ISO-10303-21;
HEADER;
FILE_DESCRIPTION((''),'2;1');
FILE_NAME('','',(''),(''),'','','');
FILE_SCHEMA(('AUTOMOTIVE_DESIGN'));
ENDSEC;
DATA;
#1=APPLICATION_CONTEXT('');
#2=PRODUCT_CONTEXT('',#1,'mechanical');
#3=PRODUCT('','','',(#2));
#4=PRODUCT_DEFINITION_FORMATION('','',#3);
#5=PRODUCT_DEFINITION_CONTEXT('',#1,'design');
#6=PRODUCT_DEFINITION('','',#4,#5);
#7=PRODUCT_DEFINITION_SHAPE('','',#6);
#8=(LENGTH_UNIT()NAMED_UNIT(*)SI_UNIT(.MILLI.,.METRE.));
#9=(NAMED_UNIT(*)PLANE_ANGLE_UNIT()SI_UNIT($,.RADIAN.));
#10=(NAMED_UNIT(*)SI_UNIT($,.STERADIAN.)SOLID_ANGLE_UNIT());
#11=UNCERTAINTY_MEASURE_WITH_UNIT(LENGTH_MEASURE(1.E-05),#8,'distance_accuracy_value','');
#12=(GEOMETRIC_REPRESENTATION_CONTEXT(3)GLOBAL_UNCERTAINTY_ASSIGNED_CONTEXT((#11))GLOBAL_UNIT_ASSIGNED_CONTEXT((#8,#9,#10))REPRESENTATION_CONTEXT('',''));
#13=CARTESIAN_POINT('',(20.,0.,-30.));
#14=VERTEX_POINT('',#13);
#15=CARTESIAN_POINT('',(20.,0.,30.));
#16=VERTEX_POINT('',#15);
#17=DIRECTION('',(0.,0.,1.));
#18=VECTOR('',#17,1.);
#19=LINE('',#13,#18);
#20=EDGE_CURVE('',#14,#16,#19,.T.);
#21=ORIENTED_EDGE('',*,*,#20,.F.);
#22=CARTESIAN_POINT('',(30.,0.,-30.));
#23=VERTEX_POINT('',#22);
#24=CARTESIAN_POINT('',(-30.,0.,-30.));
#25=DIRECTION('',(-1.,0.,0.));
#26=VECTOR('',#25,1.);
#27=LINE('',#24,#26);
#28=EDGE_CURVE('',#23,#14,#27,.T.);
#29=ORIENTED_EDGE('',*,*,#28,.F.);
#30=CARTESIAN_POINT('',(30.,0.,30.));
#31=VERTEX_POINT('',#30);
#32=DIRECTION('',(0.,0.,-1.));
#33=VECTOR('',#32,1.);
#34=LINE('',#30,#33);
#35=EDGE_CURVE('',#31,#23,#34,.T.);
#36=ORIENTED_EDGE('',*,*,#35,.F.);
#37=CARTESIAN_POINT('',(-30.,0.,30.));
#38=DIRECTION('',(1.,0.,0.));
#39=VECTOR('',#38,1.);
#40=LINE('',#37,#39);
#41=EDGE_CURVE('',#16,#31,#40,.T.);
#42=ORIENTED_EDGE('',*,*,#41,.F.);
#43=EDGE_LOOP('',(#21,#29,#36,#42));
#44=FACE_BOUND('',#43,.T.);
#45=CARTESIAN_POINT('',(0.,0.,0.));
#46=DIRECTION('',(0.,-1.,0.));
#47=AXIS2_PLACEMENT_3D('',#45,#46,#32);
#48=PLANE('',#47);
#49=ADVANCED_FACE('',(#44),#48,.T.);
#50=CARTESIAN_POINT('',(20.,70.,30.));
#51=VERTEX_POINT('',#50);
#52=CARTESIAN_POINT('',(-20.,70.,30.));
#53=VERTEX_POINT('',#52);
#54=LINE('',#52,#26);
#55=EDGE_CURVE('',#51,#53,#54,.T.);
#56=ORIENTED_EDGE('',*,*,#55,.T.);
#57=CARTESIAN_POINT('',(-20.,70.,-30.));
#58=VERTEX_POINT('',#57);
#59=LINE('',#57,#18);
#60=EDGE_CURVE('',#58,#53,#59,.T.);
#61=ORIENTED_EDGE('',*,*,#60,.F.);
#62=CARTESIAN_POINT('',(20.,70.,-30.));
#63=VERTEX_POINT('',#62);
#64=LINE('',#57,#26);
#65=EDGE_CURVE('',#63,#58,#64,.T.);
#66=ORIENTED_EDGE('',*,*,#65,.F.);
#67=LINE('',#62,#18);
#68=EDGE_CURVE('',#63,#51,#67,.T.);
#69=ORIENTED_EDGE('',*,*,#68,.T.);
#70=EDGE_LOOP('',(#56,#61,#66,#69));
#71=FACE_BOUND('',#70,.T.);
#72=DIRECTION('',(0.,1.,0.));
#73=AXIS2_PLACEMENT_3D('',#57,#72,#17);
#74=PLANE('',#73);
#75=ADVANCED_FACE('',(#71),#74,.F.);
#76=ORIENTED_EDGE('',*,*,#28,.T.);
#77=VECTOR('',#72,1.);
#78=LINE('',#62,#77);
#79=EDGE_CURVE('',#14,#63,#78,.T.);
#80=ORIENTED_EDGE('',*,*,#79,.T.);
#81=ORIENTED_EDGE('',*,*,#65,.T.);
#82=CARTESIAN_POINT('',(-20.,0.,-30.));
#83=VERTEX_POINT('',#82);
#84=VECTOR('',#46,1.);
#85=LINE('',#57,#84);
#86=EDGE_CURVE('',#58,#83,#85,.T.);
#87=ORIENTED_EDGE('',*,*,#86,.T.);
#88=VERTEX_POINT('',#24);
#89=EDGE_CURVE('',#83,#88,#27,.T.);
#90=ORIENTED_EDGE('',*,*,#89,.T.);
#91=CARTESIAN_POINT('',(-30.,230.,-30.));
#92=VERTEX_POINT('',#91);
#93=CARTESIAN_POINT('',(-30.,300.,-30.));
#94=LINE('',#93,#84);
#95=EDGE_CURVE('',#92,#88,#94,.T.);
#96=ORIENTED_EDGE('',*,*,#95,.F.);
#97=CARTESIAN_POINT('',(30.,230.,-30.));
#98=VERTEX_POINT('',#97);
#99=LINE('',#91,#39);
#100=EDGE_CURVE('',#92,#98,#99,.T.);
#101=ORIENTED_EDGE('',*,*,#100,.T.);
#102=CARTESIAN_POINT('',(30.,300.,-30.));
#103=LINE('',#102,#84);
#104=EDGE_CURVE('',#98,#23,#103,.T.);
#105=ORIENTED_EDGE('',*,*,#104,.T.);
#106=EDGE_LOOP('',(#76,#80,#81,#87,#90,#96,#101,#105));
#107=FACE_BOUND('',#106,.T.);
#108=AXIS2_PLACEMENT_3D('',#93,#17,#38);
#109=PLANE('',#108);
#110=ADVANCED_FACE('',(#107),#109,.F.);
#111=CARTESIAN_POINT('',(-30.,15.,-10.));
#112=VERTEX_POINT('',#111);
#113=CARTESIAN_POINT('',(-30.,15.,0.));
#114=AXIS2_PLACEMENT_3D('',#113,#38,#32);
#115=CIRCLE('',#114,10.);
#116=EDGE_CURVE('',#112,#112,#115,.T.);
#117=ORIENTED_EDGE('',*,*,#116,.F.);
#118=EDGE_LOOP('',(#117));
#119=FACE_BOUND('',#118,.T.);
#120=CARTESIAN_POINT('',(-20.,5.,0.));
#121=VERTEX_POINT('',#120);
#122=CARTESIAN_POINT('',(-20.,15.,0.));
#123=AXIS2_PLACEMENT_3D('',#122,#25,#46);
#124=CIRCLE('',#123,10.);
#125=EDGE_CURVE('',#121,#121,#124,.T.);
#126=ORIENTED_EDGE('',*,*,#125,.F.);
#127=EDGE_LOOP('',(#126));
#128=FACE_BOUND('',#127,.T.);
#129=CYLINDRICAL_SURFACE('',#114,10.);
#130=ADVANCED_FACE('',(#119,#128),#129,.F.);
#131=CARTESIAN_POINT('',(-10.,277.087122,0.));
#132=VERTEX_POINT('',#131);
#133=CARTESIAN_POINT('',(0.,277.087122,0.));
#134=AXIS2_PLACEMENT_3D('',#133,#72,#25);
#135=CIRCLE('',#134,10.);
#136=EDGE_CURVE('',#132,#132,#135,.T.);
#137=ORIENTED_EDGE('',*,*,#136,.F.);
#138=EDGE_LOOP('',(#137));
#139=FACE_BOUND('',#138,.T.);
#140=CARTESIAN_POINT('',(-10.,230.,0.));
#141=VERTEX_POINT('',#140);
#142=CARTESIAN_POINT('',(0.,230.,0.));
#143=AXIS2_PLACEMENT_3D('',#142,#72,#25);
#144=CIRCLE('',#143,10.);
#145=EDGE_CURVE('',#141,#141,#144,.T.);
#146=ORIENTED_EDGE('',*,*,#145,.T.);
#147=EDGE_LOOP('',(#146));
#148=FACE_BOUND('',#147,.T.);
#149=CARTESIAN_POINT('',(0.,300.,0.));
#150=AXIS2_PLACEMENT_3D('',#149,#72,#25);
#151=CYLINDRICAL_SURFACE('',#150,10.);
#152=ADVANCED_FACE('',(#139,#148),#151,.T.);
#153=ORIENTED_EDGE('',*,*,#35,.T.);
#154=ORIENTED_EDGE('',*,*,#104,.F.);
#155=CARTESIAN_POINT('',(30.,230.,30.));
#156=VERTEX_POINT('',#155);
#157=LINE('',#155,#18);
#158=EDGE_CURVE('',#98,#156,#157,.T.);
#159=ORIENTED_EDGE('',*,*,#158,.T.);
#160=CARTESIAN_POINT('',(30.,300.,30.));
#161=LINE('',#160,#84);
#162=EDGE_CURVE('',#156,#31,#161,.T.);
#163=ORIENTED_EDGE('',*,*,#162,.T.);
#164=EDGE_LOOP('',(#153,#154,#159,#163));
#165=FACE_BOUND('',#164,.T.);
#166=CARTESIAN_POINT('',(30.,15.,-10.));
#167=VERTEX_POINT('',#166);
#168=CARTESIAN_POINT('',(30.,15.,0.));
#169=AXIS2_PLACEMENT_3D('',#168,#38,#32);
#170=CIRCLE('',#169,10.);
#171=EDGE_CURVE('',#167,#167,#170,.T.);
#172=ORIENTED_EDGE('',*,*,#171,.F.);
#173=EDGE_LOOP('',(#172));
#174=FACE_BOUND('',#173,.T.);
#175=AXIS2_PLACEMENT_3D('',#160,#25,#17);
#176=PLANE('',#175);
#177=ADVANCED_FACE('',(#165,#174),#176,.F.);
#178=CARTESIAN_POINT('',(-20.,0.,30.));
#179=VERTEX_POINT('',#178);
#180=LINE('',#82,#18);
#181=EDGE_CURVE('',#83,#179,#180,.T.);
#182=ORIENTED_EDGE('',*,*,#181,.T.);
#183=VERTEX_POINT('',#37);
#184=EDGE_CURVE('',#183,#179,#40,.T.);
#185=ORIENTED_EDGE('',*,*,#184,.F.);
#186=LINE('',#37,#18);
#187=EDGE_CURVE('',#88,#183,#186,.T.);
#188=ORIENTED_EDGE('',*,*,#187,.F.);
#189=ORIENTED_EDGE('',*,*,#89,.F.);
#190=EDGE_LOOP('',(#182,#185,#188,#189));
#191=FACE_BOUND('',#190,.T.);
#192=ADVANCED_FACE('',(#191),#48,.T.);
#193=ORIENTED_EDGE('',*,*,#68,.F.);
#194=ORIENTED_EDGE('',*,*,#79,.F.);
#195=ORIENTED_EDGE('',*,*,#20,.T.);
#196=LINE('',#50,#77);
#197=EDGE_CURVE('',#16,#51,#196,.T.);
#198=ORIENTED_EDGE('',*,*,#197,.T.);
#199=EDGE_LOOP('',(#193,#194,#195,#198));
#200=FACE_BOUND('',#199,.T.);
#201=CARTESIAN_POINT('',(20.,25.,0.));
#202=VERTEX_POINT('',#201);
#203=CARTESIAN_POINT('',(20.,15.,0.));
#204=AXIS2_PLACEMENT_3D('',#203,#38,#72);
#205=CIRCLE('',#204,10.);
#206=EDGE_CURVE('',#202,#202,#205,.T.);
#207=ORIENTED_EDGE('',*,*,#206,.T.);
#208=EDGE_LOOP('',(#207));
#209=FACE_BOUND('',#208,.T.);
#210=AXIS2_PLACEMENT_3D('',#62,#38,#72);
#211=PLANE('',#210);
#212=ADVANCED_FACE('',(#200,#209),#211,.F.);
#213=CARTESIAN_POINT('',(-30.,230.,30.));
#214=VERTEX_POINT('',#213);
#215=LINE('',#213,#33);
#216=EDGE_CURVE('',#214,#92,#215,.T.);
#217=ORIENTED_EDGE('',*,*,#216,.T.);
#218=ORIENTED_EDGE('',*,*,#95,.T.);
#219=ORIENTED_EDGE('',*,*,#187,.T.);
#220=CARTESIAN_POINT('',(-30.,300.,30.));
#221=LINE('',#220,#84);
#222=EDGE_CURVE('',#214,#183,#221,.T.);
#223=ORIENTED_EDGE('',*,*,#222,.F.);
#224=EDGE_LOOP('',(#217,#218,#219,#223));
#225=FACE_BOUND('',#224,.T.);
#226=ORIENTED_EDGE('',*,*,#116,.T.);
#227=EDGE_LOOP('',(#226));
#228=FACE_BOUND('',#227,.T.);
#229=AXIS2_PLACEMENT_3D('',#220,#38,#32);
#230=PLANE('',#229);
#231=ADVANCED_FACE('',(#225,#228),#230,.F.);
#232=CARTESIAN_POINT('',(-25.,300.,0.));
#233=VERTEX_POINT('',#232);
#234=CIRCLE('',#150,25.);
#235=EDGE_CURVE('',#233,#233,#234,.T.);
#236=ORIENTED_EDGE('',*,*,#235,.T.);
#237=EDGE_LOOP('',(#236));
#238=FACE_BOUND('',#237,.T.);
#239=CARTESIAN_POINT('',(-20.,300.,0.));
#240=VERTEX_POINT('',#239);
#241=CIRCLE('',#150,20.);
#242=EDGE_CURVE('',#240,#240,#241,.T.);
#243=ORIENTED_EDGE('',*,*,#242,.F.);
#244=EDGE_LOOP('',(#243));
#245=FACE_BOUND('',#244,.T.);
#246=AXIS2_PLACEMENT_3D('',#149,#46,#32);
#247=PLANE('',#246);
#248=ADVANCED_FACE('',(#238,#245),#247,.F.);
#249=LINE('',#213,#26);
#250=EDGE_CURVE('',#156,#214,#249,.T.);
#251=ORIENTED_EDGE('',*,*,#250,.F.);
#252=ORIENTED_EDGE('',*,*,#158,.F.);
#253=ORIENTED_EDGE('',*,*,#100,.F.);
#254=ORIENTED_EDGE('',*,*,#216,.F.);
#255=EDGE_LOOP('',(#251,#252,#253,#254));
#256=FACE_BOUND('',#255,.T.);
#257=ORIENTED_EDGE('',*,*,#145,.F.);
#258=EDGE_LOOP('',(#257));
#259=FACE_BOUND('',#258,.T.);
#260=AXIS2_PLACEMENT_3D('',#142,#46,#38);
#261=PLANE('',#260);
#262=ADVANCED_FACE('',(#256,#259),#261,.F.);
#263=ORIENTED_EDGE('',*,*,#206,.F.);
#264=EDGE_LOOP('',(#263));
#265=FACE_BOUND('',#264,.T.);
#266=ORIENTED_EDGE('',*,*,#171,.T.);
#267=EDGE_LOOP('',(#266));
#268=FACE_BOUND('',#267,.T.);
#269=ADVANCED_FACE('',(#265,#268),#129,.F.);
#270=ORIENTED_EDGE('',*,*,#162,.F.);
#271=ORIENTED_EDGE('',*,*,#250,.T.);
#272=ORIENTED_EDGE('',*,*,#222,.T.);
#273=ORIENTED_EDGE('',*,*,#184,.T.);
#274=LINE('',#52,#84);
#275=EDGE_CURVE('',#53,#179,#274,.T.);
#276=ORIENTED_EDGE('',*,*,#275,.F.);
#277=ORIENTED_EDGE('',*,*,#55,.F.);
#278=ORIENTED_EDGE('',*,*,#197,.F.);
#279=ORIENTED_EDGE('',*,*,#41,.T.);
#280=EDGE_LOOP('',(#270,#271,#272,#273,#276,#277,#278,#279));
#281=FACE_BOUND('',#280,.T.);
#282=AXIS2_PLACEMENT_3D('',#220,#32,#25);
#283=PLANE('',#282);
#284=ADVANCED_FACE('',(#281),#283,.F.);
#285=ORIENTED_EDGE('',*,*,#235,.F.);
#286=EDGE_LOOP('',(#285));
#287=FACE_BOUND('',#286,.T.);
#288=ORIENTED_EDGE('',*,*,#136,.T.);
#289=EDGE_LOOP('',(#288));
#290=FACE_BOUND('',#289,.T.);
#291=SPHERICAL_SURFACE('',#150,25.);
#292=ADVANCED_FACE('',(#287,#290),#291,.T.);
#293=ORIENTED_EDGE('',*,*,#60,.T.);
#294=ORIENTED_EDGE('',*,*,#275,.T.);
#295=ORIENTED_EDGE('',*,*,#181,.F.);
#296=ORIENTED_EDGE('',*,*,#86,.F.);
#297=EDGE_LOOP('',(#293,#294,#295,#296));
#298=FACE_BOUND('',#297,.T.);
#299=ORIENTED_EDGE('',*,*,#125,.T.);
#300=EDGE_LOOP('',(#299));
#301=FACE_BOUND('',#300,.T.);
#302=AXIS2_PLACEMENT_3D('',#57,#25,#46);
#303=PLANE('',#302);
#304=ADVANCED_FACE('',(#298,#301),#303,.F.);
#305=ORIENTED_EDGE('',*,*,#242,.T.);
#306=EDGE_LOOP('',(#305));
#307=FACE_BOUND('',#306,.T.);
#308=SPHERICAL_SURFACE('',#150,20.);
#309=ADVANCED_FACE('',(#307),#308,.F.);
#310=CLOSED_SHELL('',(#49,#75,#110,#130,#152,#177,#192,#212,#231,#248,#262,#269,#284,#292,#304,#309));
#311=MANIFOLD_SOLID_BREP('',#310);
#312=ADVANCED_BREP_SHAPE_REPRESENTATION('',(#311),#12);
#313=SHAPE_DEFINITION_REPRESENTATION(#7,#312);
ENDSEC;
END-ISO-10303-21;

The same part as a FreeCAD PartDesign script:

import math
import FreeCAD as App
import Part
import Sketcher

V = App.Vector

doc = App.newDocument("Part")
params = doc.addObject("Spreadsheet::Sheet", "Params")
for row, (alias, value) in enumerate([
    ("sketch1_width", "60 mm"),
    ("pad1_length", "300 mm"),
    ("sketch2_width", "40 mm"),
    ("sketch2_height", "70 mm"),
    ("sketch3_diameter", "20 mm"),
    ("sketch4_radius", "25 mm"),
    ("sketch4_radius2", "20 mm"),
    ("sketch4_height", "70 mm"),
    ("groove_angle", "360 deg"),
], start=1):
    params.set(f"A{row}", alias)
    params.set(f"B{row}", "=" + value)
    params.setAlias(f"B{row}", alias)

body = doc.addObject("PartDesign::Body", "Body")

# Sketch on XZ plane
sketch1 = body.newObject("Sketcher::SketchObject", "Sketch")
sketch1.AttachmentSupport = (doc.getObject("XZ_Plane"), [""])
sketch1.MapMode = "FlatFace"
sketch1.addGeometry([
    Part.LineSegment(V(-30, -30, 0), V(-30, 30, 0)),
    Part.LineSegment(V(-30, 30, 0), V(30, 30, 0)),
    Part.LineSegment(V(30, 30, 0), V(30, -30, 0)),
    Part.LineSegment(V(30, -30, 0), V(-30, -30, 0)),
], False)
sketch1.addConstraint([
    Sketcher.Constraint("Coincident", 0, 2, 1, 1),
    Sketcher.Constraint("Coincident", 1, 2, 2, 1),
    Sketcher.Constraint("Coincident", 2, 2, 3, 1),
    Sketcher.Constraint("Coincident", 3, 2, 0, 1),
    Sketcher.Constraint("Vertical", 0),
    Sketcher.Constraint("Horizontal", 1),
    Sketcher.Constraint("Vertical", 2),
    Sketcher.Constraint("Horizontal", 3),
    Sketcher.Constraint("Symmetric", 0, 2, 2, 2, -1, 1),
    Sketcher.Constraint("Equal", 3, 0),
    Sketcher.Constraint("DistanceX", 1, 1, 1, 2, 60.0),
])
sketch1.setExpression("Constraints[10]", "Params.sketch1_width")
pad1 = body.newObject("PartDesign::Pad", "Pad")
pad1.Profile = sketch1
pad1.setExpression("Length", "Params.pad1_length")
pad1.Reversed = True

# Sketch on XY plane
sketch2 = body.newObject("Sketcher::SketchObject", "Sketch001")
sketch2.AttachmentSupport = (doc.getObject("XY_Plane"), [""])
sketch2.MapMode = "FlatFace"
sketch2.addGeometry([
    Part.LineSegment(V(-20, 70, 0), V(-20, 0, 0)),
    Part.LineSegment(V(-20, 0, 0), V(20, 0, 0)),
    Part.LineSegment(V(20, 0, 0), V(20, 70, 0)),
    Part.LineSegment(V(20, 70, 0), V(-20, 70, 0)),
], False)
sketch2.addConstraint([
    Sketcher.Constraint("Coincident", 0, 2, 1, 1),
    Sketcher.Constraint("Coincident", 1, 2, 2, 1),
    Sketcher.Constraint("Coincident", 2, 2, 3, 1),
    Sketcher.Constraint("Coincident", 3, 2, 0, 1),
    Sketcher.Constraint("Vertical", 0),
    Sketcher.Constraint("Horizontal", 1),
    Sketcher.Constraint("Vertical", 2),
    Sketcher.Constraint("Horizontal", 3),
    Sketcher.Constraint("Symmetric", 0, 2, 1, 2, -1, 1),
    Sketcher.Constraint("DistanceX", 1, 1, 1, 2, 40.0),
    Sketcher.Constraint("DistanceY", 0, 2, 0, 1, 70.0),
])
sketch2.setExpression("Constraints[9]", "Params.sketch2_width")
sketch2.setExpression("Constraints[10]", "Params.sketch2_height")
pocket1 = body.newObject("PartDesign::Pocket", "Pocket")
pocket1.Profile = sketch2
pocket1.Type = "ThroughAll"
pocket1.Midplane = True

# Sketch on YZ plane
sketch3 = body.newObject("Sketcher::SketchObject", "Sketch002")
sketch3.AttachmentSupport = (doc.getObject("YZ_Plane"), [""])
sketch3.MapMode = "FlatFace"
sketch3.addGeometry(Part.Circle(V(15, 0, 0), V(0, 0, 1), 10), False)
sketch3.addConstraint([
    Sketcher.Constraint("PointOnObject", 0, 3, -1),
    Sketcher.Constraint("Diameter", 0, 20.0),
    Sketcher.Constraint("DistanceX", -1, 1, 0, 3, 15.0),
])
sketch3.setExpression("Constraints[1]", "Params.sketch3_diameter")
pocket2 = body.newObject("PartDesign::Pocket", "Pocket001")
pocket2.Profile = sketch3
pocket2.Type = "ThroughAll"
pocket2.Midplane = True

# Sketch on XY plane
sketch4 = body.newObject("Sketcher::SketchObject", "Sketch003")
sketch4.AttachmentSupport = (doc.getObject("XY_Plane"), [""])
sketch4.MapMode = "FlatFace"
sketch4.addGeometry([
    Part.ArcOfCircle(Part.Circle(V(0, 300, 0), V(0, 0, 1), 25), math.radians(180), math.radians(246)),  # 0
    Part.LineSegment(V(-25, 300, 0), V(-59, 300, 0)),  # 1
    Part.LineSegment(V(-59, 300, 0), V(-59, 230, 0)),  # 2
    Part.LineSegment(V(-59, 230, 0), V(-10, 230, 0)),  # 3
    Part.LineSegment(V(-10, 230, 0), V(-10, 277, 0)),  # 4
    Part.LineSegment(V(0, 300, 0), V(-20, 300, 0)),  # 5
    Part.ArcOfCircle(Part.Circle(V(0, 300, 0), V(0, 0, 1), 20), math.radians(180), math.radians(270)),  # 6
    Part.LineSegment(V(0, 280, 0), V(0, 300, 0)),  # 7
], False)
sketch4.addConstraint([
    Sketcher.Constraint("Coincident", 0, 1, 1, 1),
    Sketcher.Constraint("Coincident", 1, 2, 2, 1),
    Sketcher.Constraint("Coincident", 2, 2, 3, 1),
    Sketcher.Constraint("Coincident", 3, 2, 4, 1),
    Sketcher.Constraint("Coincident", 4, 2, 0, 2),
    Sketcher.Constraint("Coincident", 5, 2, 6, 1),
    Sketcher.Constraint("Coincident", 6, 2, 7, 1),
    Sketcher.Constraint("Coincident", 7, 2, 5, 1),
    Sketcher.Constraint("Horizontal", 1),
    Sketcher.Constraint("Vertical", 2),
    Sketcher.Constraint("Horizontal", 3),
    Sketcher.Constraint("Vertical", 4),
    Sketcher.Constraint("Horizontal", 5),
    Sketcher.Constraint("Vertical", 7),
    Sketcher.Constraint("Coincident", 6, 3, 0, 3),
    Sketcher.Constraint("Coincident", 7, 2, 0, 3),
    Sketcher.Constraint("PointOnObject", 0, 3, -2),
    Sketcher.Constraint("Horizontal", 6, 3, 0, 1),
    Sketcher.Constraint("Radius", 0, 25.0),
    Sketcher.Constraint("Radius", 6, 20.0),
    Sketcher.Constraint("DistanceY", 2, 2, 2, 1, 70.0),
    Sketcher.Constraint("DistanceY", -1, 1, 0, 3, 300.0),
    Sketcher.Constraint("DistanceX", 3, 2, -1, 1, 10.0),
    Sketcher.Constraint("DistanceX", 1, 2, 1, 1, 34.400542),
])
sketch4.setExpression("Constraints[18]", "Params.sketch4_radius")
sketch4.setExpression("Constraints[19]", "Params.sketch4_radius2")
sketch4.setExpression("Constraints[20]", "Params.sketch4_height")
groove = body.newObject("PartDesign::Groove", "Groove")
groove.Profile = sketch4
groove.ReferenceAxis = (sketch4, ["V_Axis"])
groove.setExpression("Angle", "Params.groove_angle")

doc.recompute()
